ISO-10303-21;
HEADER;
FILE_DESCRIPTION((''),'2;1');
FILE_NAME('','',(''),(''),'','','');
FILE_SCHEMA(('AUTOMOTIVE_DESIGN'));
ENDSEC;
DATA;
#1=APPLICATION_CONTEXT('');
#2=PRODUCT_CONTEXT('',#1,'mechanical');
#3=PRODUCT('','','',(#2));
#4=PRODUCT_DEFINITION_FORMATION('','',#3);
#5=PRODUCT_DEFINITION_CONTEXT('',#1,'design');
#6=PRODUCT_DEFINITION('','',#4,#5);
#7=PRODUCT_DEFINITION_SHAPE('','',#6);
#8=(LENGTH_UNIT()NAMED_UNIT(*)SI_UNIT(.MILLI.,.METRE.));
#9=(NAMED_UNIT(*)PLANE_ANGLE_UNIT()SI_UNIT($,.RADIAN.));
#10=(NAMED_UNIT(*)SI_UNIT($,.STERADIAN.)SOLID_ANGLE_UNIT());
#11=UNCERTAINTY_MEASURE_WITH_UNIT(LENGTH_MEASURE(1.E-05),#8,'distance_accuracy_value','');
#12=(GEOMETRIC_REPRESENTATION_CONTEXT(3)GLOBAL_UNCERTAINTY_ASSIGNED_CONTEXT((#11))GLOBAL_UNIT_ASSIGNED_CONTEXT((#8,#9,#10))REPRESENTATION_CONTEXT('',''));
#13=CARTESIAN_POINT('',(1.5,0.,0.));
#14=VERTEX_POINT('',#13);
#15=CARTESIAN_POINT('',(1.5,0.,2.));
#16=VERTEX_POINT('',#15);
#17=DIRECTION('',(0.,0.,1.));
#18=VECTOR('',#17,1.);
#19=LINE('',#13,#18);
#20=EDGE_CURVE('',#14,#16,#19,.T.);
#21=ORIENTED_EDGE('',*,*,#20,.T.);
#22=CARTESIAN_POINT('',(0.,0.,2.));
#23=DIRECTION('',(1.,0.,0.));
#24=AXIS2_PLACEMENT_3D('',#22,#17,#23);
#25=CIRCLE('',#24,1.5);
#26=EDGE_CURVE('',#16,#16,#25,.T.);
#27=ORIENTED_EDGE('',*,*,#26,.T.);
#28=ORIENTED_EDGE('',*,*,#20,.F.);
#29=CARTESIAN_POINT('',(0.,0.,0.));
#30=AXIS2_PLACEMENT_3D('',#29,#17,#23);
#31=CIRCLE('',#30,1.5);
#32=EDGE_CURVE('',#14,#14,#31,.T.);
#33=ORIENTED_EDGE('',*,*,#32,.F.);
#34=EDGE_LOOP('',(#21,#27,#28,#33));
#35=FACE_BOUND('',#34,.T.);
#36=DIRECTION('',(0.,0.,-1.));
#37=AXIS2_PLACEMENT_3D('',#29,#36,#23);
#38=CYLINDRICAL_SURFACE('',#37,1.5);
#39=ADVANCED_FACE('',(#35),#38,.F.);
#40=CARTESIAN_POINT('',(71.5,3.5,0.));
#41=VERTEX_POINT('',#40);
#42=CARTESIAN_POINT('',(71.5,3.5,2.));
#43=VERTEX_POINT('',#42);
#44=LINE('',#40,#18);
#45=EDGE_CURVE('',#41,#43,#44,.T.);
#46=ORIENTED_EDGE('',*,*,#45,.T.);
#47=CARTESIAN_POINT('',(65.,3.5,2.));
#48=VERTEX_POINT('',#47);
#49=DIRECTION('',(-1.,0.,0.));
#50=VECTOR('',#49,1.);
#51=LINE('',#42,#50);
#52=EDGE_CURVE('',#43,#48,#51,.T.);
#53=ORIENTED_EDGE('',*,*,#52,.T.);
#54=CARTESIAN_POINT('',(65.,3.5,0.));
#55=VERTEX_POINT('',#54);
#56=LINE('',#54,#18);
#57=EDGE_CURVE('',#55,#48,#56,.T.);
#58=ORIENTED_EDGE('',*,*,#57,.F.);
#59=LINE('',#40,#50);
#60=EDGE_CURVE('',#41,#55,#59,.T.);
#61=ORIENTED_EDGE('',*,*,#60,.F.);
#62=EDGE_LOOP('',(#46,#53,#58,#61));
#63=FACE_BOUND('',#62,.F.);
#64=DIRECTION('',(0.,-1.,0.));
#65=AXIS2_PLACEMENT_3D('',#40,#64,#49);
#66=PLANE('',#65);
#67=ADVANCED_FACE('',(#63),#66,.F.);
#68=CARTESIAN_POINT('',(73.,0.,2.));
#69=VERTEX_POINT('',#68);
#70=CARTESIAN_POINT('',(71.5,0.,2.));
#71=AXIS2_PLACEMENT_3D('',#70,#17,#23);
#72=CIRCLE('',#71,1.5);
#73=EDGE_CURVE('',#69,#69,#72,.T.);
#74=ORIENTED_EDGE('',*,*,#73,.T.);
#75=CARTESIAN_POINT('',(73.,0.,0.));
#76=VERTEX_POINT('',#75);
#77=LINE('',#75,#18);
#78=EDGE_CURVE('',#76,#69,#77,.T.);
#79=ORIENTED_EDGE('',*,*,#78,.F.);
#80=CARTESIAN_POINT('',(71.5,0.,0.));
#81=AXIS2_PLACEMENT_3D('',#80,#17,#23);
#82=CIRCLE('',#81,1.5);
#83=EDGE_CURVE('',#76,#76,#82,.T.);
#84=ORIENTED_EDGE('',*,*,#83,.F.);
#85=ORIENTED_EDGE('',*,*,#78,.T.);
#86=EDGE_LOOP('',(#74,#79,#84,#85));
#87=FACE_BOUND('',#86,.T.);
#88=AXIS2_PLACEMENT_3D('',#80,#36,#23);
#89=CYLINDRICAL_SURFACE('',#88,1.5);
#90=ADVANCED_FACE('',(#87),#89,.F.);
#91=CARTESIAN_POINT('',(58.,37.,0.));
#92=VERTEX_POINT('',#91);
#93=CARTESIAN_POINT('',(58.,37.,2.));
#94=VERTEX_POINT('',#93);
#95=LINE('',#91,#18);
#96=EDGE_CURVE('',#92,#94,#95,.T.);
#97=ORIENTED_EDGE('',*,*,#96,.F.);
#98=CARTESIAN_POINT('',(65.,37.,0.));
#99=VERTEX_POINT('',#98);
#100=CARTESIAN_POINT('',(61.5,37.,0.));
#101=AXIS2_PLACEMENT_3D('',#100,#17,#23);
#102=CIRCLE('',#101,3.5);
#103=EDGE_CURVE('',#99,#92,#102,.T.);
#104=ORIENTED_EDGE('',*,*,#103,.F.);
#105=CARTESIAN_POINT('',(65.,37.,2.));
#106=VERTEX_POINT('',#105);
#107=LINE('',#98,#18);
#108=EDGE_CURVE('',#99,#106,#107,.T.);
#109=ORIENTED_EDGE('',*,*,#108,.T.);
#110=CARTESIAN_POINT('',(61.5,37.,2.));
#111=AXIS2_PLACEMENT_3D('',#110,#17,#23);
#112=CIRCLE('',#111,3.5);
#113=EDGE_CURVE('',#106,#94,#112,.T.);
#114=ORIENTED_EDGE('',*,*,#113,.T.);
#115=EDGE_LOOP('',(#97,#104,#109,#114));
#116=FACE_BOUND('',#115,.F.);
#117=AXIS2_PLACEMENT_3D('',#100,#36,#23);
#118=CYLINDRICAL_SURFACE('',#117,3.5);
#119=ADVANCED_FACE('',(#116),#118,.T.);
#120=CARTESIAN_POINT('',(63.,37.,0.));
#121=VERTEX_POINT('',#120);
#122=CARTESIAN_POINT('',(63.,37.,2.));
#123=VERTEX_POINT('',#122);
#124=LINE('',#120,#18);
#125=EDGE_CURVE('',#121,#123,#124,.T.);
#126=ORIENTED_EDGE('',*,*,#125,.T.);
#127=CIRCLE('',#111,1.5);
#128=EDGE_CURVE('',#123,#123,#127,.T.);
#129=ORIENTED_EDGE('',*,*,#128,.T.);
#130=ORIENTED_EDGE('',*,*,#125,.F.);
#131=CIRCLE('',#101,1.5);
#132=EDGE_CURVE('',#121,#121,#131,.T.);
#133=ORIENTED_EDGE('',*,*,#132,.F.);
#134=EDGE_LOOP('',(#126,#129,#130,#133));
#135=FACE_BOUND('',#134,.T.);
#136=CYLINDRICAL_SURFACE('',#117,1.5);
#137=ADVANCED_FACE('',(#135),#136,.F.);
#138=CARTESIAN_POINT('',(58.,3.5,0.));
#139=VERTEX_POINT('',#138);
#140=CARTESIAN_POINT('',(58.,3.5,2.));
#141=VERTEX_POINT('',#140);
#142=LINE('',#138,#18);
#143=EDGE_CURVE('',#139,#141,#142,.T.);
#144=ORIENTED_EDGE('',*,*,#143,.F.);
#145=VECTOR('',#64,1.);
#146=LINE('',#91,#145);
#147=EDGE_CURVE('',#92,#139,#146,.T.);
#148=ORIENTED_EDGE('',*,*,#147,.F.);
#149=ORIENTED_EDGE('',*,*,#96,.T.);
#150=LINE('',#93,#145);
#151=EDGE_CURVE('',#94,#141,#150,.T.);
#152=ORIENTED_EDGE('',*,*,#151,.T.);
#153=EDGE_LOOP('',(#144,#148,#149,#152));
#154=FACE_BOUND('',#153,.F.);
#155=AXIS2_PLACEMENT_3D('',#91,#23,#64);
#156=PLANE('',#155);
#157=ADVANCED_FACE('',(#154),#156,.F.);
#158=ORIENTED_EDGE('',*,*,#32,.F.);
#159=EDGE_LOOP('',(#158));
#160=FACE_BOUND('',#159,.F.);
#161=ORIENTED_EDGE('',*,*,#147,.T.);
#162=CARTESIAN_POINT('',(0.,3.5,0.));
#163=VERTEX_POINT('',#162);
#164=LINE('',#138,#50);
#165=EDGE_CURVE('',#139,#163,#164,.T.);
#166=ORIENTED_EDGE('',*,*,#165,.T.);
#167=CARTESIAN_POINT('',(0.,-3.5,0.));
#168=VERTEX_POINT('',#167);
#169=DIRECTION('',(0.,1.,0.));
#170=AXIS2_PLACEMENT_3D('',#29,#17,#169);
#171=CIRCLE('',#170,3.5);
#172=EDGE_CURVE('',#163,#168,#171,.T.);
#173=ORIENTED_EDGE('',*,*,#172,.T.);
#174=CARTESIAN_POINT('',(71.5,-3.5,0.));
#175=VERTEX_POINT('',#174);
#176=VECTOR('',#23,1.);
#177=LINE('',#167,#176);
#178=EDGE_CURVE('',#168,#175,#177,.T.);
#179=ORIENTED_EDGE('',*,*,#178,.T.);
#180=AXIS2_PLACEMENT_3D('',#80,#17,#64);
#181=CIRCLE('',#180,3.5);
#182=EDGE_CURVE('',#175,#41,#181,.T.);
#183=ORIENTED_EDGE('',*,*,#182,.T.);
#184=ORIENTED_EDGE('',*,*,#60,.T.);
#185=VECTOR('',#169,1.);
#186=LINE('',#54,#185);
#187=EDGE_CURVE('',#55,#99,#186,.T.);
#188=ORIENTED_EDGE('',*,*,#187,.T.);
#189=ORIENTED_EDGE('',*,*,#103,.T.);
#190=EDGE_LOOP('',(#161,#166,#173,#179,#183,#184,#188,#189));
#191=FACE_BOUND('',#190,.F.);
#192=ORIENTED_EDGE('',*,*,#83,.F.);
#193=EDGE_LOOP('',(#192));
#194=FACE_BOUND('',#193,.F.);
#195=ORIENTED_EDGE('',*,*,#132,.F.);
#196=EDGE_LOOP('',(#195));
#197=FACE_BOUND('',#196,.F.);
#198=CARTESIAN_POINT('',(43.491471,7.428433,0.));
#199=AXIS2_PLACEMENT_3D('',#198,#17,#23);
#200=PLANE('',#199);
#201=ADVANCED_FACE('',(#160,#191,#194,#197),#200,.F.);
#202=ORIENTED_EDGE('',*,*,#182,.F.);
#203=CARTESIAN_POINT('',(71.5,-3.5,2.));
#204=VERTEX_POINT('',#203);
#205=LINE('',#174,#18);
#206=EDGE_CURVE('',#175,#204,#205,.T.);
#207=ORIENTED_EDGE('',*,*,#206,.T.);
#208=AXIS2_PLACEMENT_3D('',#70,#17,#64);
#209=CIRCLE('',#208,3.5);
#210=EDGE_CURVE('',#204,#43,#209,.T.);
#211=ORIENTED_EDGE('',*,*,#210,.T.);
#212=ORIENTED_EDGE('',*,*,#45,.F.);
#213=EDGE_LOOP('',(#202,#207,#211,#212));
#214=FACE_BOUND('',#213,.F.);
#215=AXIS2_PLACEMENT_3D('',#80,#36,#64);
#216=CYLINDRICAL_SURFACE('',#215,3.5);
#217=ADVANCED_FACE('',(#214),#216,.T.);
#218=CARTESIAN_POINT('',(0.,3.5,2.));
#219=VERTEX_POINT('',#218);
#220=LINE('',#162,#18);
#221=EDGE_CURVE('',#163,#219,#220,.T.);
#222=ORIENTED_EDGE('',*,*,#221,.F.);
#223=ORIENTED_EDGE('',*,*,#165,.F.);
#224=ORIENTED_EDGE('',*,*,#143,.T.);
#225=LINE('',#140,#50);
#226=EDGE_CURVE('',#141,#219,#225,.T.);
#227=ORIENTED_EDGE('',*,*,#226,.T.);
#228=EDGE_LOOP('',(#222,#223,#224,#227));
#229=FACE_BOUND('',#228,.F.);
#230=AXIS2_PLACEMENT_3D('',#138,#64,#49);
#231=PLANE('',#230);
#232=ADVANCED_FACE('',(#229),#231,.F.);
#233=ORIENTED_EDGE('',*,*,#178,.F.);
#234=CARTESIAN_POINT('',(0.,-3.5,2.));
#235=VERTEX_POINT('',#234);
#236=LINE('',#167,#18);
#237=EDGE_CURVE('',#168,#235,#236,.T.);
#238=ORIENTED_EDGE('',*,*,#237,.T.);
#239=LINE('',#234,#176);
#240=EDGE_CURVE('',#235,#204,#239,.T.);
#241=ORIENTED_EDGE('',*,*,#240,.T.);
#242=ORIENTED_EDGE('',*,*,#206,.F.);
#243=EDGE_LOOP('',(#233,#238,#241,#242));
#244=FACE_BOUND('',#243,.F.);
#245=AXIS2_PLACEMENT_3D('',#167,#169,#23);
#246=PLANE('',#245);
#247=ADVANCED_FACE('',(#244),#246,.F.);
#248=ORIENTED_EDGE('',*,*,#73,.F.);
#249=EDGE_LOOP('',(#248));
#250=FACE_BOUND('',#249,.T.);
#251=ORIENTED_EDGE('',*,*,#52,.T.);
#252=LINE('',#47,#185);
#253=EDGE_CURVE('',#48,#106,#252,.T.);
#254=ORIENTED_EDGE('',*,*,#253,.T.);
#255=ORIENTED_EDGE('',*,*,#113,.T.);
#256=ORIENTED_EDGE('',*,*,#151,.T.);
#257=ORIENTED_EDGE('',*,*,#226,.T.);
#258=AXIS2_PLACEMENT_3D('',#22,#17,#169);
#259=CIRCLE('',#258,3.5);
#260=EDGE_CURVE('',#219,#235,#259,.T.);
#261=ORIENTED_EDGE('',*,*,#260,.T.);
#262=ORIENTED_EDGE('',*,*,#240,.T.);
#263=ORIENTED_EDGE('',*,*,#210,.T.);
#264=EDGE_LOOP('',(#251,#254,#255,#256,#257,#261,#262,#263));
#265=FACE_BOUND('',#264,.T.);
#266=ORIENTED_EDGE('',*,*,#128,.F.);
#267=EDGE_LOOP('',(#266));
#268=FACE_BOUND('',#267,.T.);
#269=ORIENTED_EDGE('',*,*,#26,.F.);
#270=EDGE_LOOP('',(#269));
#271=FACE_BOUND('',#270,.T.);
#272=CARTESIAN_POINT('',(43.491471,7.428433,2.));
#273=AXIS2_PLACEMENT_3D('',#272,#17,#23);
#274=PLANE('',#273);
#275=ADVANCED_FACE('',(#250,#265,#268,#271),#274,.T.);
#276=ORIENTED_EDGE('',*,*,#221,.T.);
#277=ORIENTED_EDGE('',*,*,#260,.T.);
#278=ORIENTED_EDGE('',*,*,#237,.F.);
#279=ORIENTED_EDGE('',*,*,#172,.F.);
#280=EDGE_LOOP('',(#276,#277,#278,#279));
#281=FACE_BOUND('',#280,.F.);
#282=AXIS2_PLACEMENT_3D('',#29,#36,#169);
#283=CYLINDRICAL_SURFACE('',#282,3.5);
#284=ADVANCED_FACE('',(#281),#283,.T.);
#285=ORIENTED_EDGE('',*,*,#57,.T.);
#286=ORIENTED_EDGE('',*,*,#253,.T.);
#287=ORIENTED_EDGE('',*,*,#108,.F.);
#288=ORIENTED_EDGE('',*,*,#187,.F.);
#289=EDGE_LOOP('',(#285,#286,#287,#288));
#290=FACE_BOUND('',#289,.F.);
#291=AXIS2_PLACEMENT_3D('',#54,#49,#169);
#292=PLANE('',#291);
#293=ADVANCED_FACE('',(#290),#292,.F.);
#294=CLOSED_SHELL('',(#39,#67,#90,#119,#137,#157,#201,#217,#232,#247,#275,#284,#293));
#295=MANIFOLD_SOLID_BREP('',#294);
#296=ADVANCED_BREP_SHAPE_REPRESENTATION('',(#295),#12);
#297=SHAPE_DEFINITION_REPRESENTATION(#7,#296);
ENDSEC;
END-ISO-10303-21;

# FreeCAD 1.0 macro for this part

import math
import FreeCAD as App
import Part
import Sketcher

V = App.Vector

doc = App.newDocument("Part")
body = doc.addObject("PartDesign::Body", "Body")

# Sketch on XY plane
sketch1 = body.newObject("Sketcher::SketchObject", "Sketch")
sketch1.AttachmentSupport = (doc.getObject("XY_Plane"), [""])
sketch1.MapMode = "FlatFace"
sketch1.addGeometry([
    Part.LineSegment(V(65, 3.5, 0), V(65, 37, 0)),  # 0
    Part.ArcOfCircle(Part.Circle(V(61.5, 37, 0), V(0, 0, 1), 3.5), math.radians(0), math.radians(180)),  # 1
    Part.LineSegment(V(58, 37, 0), V(58, 3.5, 0)),  # 2
    Part.LineSegment(V(58, 3.5, 0), V(0, 3.5, 0)),  # 3
    Part.ArcOfCircle(Part.Circle(V(0, 0, 0), V(0, 0, 1), 3.5), math.radians(90), math.radians(270)),  # 4
    Part.LineSegment(V(0, -3.5, 0), V(71.5, -3.5, 0)),  # 5
    Part.ArcOfCircle(Part.Circle(V(71.5, 0, 0), V(0, 0, 1), 3.5), math.radians(-90), math.radians(90)),  # 6
    Part.LineSegment(V(71.5, 3.5, 0), V(65, 3.5, 0)),  # 7
    Part.Circle(V(0, 0, 0), V(0, 0, 1), 1.5),  # 8
    Part.Circle(V(71.5, 0, 0), V(0, 0, 1), 1.5),  # 9
    Part.Circle(V(61.5, 37, 0), V(0, 0, 1), 1.5),  # 10
], False)
sketch1.addConstraint([
    Sketcher.Constraint("Tangent", 0, 2, 1, 1),
    Sketcher.Constraint("Tangent", 1, 2, 2, 1),
    Sketcher.Constraint("Coincident", 2, 2, 3, 1),
    Sketcher.Constraint("Tangent", 3, 2, 4, 1),
    Sketcher.Constraint("Tangent", 4, 2, 5, 1),
    Sketcher.Constraint("Tangent", 5, 2, 6, 1),
    Sketcher.Constraint("Tangent", 6, 2, 7, 1),
    Sketcher.Constraint("Coincident", 7, 2, 0, 1),
    Sketcher.Constraint("Vertical", 0),
    Sketcher.Constraint("Vertical", 2),
    Sketcher.Constraint("Horizontal", 3),
    Sketcher.Constraint("Horizontal", 5),
    Sketcher.Constraint("Horizontal", 7),
    Sketcher.Constraint("Coincident", 4, 3, -1, 1),
    Sketcher.Constraint("Coincident", 8, 3, -1, 1),
    Sketcher.Constraint("Coincident", 9, 3, 6, 3),
    Sketcher.Constraint("Coincident", 10, 3, 1, 3),
    Sketcher.Constraint("Equal", 1, 4),
    Sketcher.Constraint("Equal", 4, 6),
    Sketcher.Constraint("Equal", 8, 9),
    Sketcher.Constraint("Equal", 9, 10),
    Sketcher.Constraint("Diameter", 8, 3.0),
    Sketcher.Constraint("Radius", 1, 3.5),
    Sketcher.Constraint("DistanceX", 3, 2, 3, 1, 58.0),
    Sketcher.Constraint("DistanceX", 5, 1, 5, 2, 71.5),
    Sketcher.Constraint("DistanceY", 0, 1, 0, 2, 33.5),
])
pad1 = body.newObject("PartDesign::Pad", "Pad")
pad1.Profile = sketch1
pad1.Length = 2

doc.recompute()
